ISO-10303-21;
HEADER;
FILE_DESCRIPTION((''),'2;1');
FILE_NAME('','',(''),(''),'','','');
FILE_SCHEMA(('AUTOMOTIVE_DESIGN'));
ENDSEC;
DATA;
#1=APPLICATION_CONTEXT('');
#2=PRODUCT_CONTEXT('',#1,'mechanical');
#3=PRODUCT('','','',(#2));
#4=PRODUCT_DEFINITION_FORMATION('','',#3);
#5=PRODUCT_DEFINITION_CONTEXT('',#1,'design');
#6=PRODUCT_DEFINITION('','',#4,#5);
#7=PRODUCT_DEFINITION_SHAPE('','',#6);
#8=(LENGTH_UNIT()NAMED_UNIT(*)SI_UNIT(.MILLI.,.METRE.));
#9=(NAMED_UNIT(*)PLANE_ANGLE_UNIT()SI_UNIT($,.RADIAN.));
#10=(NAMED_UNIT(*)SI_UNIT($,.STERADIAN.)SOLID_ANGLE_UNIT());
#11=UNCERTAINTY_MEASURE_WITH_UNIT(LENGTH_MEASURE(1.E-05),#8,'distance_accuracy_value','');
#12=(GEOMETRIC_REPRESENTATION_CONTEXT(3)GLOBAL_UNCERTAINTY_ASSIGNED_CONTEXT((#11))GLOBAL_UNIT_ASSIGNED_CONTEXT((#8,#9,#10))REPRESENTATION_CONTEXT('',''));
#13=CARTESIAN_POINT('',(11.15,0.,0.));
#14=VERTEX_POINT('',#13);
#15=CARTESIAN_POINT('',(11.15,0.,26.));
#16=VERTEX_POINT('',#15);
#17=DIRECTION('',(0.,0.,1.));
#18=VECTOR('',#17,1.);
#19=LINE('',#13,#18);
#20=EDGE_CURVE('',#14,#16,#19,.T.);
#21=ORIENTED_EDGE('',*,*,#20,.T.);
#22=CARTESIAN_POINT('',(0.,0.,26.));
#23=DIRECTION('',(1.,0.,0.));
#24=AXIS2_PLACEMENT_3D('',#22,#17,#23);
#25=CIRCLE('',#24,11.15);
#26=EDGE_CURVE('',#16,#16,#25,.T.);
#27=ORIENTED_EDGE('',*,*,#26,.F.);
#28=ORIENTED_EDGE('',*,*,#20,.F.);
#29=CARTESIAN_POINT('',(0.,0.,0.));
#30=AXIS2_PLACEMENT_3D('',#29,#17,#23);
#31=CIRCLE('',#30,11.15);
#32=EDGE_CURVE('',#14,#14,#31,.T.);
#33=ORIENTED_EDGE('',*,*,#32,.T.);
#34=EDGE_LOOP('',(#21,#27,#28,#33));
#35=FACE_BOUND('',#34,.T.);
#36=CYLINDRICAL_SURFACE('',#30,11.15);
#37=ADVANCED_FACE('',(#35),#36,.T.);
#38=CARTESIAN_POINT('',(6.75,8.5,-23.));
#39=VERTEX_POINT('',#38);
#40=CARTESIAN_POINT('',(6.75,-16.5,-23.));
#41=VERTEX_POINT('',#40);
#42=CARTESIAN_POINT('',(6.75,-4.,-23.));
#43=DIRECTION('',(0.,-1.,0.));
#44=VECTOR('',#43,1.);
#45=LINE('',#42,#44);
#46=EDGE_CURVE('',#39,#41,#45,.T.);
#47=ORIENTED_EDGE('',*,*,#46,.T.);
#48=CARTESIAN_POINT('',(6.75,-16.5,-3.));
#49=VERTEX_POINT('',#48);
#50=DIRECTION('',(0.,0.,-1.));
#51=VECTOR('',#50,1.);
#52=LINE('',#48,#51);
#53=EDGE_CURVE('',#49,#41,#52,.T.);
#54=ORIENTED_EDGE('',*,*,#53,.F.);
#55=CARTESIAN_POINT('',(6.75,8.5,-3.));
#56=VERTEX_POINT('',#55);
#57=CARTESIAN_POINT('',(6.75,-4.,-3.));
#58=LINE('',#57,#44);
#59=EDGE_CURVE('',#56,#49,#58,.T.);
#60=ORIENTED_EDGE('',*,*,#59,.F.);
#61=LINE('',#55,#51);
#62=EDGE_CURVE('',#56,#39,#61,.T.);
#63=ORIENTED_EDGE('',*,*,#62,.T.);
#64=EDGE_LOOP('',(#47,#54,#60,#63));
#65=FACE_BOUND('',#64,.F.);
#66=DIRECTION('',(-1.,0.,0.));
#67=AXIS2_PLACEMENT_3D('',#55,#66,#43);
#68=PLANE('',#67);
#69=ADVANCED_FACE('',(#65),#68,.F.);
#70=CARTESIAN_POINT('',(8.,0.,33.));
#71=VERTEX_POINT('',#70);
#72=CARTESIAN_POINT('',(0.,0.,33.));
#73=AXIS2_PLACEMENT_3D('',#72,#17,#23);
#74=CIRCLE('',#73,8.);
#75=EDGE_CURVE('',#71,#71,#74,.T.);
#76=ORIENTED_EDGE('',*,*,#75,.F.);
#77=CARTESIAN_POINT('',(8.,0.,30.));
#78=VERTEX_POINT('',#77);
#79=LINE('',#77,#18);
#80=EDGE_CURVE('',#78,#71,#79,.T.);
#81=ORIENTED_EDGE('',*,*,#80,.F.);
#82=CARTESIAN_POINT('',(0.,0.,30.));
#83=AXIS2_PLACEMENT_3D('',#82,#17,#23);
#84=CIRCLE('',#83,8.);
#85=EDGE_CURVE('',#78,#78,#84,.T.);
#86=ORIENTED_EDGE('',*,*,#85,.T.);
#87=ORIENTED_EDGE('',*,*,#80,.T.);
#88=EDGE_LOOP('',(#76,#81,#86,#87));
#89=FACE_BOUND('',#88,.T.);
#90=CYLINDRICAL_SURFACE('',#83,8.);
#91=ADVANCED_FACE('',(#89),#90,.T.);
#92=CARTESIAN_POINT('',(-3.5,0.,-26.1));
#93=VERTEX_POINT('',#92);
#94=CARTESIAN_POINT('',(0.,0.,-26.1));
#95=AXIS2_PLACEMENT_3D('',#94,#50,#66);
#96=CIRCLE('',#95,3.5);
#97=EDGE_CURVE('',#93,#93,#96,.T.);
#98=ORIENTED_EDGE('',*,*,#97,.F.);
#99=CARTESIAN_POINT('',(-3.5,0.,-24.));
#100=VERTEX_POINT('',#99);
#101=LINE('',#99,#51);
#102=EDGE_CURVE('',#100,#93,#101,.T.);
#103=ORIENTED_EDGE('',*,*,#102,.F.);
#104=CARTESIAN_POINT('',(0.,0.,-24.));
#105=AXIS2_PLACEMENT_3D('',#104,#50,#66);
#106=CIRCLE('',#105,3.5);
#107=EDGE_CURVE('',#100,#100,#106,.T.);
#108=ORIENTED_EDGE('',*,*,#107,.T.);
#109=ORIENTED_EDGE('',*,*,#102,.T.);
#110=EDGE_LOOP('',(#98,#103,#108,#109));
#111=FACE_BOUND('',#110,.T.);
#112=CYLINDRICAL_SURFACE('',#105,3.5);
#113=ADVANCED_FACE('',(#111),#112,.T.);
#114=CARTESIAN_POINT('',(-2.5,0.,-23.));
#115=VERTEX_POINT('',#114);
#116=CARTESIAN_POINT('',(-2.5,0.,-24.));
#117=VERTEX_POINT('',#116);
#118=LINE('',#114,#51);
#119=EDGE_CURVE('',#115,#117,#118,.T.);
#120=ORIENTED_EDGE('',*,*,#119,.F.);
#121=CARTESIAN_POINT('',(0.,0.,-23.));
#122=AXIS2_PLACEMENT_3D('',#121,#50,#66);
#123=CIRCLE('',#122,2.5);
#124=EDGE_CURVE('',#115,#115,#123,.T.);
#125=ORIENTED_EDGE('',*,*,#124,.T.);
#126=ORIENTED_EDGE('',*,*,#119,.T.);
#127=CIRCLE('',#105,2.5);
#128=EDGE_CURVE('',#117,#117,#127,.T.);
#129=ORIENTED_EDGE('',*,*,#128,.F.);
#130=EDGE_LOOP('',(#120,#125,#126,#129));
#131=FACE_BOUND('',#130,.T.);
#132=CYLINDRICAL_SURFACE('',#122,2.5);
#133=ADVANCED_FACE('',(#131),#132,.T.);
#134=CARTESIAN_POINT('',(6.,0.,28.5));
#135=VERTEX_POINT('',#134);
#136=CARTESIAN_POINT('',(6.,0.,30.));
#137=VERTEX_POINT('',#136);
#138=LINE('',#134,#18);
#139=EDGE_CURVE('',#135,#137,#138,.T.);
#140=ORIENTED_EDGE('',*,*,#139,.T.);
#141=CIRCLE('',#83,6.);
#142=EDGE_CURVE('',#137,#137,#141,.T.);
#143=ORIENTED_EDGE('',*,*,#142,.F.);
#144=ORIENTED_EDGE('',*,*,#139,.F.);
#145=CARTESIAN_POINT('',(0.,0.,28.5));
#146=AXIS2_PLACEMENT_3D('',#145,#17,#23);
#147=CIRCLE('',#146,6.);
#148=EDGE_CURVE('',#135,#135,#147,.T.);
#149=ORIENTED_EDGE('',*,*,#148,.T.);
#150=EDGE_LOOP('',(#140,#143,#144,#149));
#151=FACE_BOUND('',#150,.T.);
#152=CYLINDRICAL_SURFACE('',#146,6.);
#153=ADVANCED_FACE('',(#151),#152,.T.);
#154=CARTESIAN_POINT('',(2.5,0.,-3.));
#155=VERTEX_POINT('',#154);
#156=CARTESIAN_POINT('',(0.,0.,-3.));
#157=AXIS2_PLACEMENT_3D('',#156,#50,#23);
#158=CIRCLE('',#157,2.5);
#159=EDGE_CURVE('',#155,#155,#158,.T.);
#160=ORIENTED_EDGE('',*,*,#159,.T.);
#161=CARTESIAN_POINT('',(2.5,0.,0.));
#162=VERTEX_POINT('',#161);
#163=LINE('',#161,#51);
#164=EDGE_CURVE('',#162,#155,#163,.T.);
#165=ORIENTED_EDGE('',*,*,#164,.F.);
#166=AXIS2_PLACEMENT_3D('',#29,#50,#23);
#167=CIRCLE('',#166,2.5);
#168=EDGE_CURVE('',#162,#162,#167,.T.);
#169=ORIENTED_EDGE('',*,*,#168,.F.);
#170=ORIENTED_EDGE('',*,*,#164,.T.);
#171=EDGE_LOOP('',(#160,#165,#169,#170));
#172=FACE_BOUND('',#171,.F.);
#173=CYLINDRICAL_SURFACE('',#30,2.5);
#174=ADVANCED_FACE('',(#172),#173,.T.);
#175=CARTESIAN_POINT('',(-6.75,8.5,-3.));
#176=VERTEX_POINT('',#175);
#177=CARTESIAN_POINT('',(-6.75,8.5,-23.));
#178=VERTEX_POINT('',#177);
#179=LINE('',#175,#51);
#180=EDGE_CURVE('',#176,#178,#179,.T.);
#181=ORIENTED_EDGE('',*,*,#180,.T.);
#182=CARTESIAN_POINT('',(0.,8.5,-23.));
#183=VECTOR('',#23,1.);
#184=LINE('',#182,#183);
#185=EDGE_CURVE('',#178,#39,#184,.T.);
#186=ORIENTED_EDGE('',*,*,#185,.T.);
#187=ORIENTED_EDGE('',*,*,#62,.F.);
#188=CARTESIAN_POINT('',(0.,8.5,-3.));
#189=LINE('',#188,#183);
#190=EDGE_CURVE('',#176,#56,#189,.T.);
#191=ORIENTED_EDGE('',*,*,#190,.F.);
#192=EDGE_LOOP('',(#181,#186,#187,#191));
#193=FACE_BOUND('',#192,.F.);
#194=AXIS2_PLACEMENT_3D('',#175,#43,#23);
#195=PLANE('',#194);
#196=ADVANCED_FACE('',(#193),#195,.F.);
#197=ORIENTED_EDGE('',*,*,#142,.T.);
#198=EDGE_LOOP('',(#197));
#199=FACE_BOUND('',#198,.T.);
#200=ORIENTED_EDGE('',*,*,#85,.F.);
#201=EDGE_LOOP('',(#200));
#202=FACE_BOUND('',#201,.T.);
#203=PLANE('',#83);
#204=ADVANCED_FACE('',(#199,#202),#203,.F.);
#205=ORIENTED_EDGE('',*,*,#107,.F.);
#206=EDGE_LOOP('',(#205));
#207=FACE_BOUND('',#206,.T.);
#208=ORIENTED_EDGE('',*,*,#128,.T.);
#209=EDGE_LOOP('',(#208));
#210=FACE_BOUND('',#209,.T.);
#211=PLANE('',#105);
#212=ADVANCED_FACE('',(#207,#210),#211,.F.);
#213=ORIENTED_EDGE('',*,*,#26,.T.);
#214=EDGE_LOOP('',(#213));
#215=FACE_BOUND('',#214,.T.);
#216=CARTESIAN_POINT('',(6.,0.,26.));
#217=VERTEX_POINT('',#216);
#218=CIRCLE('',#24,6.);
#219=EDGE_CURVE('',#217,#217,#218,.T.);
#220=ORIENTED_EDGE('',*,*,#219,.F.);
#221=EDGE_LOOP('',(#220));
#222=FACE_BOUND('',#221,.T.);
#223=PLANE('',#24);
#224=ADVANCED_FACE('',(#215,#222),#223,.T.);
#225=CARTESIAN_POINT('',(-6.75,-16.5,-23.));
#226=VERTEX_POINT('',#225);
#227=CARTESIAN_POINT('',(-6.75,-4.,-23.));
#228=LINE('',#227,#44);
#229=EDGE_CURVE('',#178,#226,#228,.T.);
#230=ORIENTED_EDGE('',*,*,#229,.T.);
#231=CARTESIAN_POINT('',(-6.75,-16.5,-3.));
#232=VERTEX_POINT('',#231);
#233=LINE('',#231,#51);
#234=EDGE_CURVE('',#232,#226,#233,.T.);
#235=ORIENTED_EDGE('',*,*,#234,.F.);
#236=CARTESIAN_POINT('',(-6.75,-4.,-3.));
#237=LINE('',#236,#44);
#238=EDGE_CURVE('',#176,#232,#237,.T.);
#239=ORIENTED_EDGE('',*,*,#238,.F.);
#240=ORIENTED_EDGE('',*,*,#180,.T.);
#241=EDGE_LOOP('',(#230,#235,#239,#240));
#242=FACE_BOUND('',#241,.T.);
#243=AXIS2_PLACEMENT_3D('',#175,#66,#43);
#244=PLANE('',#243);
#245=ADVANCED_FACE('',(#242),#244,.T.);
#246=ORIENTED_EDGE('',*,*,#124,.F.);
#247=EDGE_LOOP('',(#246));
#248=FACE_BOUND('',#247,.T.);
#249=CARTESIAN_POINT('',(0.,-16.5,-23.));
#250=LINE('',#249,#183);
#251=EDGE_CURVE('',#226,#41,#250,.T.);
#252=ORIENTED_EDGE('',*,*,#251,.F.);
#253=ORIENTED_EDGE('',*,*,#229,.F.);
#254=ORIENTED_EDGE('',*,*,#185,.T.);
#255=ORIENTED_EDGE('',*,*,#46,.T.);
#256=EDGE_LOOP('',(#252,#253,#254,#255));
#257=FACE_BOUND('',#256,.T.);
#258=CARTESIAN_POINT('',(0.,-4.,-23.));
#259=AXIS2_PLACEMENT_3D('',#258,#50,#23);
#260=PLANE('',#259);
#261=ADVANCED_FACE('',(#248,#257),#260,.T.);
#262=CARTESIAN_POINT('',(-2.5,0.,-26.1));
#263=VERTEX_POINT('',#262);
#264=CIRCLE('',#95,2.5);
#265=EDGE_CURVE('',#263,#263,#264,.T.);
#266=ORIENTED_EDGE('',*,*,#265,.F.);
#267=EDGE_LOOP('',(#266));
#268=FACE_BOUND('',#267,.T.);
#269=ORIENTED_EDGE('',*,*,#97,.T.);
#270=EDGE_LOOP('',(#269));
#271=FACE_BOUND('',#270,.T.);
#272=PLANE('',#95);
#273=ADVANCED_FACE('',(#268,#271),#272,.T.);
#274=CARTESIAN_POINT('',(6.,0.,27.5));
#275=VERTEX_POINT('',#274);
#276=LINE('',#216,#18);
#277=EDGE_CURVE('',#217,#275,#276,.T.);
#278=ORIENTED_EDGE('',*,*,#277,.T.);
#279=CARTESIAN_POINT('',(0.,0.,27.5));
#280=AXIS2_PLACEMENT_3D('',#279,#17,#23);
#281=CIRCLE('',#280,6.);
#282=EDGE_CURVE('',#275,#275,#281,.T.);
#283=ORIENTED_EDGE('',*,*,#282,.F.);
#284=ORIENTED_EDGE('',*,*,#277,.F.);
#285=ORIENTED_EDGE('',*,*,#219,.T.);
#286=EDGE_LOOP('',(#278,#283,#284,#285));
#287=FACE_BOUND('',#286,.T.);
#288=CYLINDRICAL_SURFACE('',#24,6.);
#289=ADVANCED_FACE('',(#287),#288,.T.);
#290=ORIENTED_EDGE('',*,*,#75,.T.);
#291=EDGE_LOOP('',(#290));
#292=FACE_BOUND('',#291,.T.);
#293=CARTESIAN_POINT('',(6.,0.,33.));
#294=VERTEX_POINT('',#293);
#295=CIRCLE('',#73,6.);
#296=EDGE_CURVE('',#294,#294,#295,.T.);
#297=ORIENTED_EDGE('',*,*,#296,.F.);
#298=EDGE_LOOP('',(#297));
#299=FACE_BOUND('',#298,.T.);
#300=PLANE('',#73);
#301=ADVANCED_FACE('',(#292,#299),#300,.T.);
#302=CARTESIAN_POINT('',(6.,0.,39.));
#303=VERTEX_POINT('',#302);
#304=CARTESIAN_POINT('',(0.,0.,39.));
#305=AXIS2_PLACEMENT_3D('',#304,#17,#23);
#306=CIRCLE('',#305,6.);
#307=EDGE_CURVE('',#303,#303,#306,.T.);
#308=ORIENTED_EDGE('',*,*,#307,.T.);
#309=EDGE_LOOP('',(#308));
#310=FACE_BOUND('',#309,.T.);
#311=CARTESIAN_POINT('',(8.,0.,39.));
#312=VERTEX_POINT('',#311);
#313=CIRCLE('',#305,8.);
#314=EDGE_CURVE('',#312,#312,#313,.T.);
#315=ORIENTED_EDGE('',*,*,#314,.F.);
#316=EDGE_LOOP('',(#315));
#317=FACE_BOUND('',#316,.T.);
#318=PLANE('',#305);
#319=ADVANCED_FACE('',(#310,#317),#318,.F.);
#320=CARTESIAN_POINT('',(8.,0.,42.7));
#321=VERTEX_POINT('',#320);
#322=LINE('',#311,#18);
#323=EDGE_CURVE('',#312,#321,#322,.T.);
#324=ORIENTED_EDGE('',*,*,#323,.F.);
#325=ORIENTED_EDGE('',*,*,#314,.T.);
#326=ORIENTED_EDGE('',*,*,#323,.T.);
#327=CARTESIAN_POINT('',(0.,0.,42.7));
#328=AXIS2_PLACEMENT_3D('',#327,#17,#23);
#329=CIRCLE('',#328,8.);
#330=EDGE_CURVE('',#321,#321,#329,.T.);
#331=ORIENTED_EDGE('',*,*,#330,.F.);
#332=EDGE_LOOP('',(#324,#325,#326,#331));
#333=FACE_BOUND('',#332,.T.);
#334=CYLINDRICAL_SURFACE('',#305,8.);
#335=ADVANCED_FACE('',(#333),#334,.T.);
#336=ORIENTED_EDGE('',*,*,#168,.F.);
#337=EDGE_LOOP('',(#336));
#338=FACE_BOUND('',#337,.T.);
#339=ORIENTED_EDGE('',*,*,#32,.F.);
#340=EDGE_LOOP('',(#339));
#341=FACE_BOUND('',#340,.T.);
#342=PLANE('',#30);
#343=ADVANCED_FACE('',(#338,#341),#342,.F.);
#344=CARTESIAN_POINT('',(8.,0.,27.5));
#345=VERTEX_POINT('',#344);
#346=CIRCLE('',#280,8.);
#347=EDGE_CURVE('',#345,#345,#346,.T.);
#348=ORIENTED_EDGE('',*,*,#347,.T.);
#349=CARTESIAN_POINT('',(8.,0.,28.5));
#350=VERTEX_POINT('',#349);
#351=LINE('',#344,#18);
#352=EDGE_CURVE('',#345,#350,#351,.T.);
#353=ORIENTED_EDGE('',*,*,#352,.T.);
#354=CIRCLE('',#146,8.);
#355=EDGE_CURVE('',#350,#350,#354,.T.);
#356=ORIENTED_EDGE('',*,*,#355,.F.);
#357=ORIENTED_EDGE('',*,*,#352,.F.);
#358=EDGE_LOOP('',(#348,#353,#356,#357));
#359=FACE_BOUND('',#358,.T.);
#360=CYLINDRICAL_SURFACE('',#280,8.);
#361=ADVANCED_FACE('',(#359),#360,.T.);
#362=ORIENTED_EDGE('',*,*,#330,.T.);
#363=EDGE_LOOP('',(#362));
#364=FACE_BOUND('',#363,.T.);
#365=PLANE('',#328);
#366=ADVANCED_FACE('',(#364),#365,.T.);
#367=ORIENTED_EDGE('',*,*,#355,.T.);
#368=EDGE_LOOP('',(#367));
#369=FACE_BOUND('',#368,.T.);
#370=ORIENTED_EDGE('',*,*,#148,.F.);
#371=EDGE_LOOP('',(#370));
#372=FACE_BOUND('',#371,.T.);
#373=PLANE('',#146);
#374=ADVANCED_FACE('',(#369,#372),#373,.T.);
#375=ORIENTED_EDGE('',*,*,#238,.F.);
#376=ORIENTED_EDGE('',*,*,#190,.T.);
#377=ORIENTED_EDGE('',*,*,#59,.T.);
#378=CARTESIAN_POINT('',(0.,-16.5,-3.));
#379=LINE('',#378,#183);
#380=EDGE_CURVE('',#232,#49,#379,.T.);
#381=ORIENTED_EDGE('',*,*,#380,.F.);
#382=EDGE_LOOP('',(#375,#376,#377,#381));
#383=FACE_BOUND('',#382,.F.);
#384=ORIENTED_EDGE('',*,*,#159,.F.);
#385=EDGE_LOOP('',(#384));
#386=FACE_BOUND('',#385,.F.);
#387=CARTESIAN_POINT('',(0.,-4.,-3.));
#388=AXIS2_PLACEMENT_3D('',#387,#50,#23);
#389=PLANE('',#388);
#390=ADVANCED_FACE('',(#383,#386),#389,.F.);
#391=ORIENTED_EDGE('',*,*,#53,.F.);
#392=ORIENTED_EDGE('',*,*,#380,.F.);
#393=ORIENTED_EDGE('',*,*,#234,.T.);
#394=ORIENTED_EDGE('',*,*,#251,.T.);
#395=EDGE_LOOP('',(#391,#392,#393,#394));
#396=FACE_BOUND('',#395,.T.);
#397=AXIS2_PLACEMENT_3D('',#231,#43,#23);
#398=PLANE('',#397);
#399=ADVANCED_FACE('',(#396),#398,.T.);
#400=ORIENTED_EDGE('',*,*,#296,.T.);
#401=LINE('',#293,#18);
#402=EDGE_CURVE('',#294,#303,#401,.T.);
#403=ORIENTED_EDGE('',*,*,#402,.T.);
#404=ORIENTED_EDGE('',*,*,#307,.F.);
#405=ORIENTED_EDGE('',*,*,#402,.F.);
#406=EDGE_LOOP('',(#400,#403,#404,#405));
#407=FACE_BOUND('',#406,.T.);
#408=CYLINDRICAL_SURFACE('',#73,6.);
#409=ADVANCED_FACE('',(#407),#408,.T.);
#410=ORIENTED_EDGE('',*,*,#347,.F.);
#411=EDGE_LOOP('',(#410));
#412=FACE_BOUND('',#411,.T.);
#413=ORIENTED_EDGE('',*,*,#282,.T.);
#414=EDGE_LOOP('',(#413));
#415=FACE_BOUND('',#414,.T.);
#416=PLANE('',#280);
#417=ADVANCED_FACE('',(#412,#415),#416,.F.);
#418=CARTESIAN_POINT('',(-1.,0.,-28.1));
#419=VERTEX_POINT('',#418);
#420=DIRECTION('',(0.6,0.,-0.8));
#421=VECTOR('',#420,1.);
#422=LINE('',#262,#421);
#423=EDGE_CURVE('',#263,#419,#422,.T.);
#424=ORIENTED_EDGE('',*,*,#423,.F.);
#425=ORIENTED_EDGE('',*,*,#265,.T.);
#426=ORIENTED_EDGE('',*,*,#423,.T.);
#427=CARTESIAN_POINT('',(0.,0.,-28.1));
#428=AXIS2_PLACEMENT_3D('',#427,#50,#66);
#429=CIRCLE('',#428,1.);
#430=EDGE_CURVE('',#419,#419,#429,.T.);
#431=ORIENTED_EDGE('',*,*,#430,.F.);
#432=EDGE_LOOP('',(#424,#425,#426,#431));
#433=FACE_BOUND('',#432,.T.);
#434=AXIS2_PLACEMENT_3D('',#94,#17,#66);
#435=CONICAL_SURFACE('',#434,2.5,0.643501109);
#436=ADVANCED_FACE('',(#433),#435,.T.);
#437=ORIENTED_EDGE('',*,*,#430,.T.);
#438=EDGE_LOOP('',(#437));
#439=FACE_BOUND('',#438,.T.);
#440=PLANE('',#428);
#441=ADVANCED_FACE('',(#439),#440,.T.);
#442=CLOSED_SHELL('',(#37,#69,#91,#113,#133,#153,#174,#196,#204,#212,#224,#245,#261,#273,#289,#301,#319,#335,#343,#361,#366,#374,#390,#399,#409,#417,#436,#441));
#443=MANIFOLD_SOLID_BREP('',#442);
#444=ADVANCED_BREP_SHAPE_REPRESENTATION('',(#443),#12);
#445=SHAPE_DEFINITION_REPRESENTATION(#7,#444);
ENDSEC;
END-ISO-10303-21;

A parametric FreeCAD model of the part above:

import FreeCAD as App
import Part
import Sketcher


def add_polygon(sketch, points):
    """Adds a closed chain of lines whose ends are joined by coincident constraints."""
    first, n = sketch.GeometryCount, len(points)
    for a, b in zip(points, points[1:] + points[:1]):
        sketch.addGeometry(Part.LineSegment(App.Vector(*a, 0), App.Vector(*b, 0)), False)
    for i in range(n):
        sketch.addConstraint(Sketcher.Constraint("Coincident", first + i, 2, first + (i + 1) % n, 1))

doc = App.newDocument("Part")
body = doc.addObject("PartDesign::Body", "Body")

# Sketch on XZ plane
sketch1 = body.newObject("Sketcher::SketchObject", "Sketch")
sketch1.AttachmentSupport = (doc.getObject("XZ_Plane"), [""])
sketch1.MapMode = "FlatFace"
add_polygon(sketch1, [(0, 42.7), (0, 0), (11.2, 0), (11.2, 26), (6, 26), (6, 27.5), (8, 27.5), (8, 28.5), (6, 28.5), (6, 30), (8, 30), (8, 33), (6, 33), (6, 39), (8, 39), (8, 42.7)])  # lines 0-15
sketch1.addConstraint([
    Sketcher.Constraint("Vertical", 0),
    Sketcher.Constraint("Horizontal", 1),
    Sketcher.Constraint("Vertical", 2),
    Sketcher.Constraint("Horizontal", 3),
    Sketcher.Constraint("Vertical", 4),
    Sketcher.Constraint("Horizontal", 5),
    Sketcher.Constraint("Vertical", 6),
    Sketcher.Constraint("Horizontal", 7),
    Sketcher.Constraint("Vertical", 8),
    Sketcher.Constraint("Horizontal", 9),
    Sketcher.Constraint("Vertical", 10),
    Sketcher.Constraint("Horizontal", 11),
    Sketcher.Constraint("Vertical", 12),
    Sketcher.Constraint("Horizontal", 13),
    Sketcher.Constraint("Vertical", 14),
    Sketcher.Constraint("Horizontal", 15),
    Sketcher.Constraint("Coincident", 0, 2, -1, 1),
    Sketcher.Constraint("Vertical", 4, 2, 7, 2),
    Sketcher.Constraint("Vertical", 6, 2, 9, 2),
    Sketcher.Constraint("Vertical", 8, 2, 11, 2),
    Sketcher.Constraint("Vertical", 10, 2, 13, 2),
    Sketcher.Constraint("Equal", 4, 8),
    Sketcher.Constraint("DistanceX", 5, 1, 5, 2, 2.0),
    Sketcher.Constraint("DistanceX", 15, 2, 15, 1, 8.0),
    Sketcher.Constraint("DistanceY", 2, 1, 2, 2, 26.0),
    Sketcher.Constraint("DistanceY", 6, 1, 6, 2, 1.0),
    Sketcher.Constraint("DistanceY", 10, 1, 10, 2, 3.0),
    Sketcher.Constraint("DistanceY", 12, 1, 12, 2, 6.0),
    Sketcher.Constraint("DistanceY", 0, 2, 0, 1, 42.7),
    Sketcher.Constraint("DistanceY", 4, 1, 4, 2, 1.5),
    Sketcher.Constraint("DistanceX", 1, 1, 1, 2, 11.15),
])
revolution = body.newObject("PartDesign::Revolution", "Revolution")
revolution.Profile = sketch1
revolution.ReferenceAxis = (sketch1, ["V_Axis"])
revolution.Angle = 360

# Sketch on XY plane
sketch2 = body.newObject("Sketcher::SketchObject", "Sketch001")
sketch2.AttachmentSupport = (doc.getObject("XY_Plane"), [""])
sketch2.MapMode = "FlatFace"
sketch2.addGeometry(Part.Circle(App.Vector(0, 0, 0), App.Vector(0, 0, 1), 2.5), False)
sketch2.addConstraint([
    Sketcher.Constraint("Coincident", 0, 3, -1, 1),
    Sketcher.Constraint("Diameter", 0, 5.0),
])
pad1 = body.newObject("PartDesign::Pad", "Pad")
pad1.Profile = sketch2
pad1.Length = 3
pad1.Reversed = True

# Sketch on XY plane
sketch3 = body.newObject("Sketcher::SketchObject", "Sketch002")
sketch3.AttachmentSupport = (doc.getObject("XY_Plane"), [""])
sketch3.MapMode = "FlatFace"
sketch3.AttachmentOffset = App.Placement(App.Vector(0, 0, -3), App.Rotation())
add_polygon(sketch3, [(-7, -16), (-7, 8), (7, 8), (7, -16)])  # lines 0-3
sketch3.addConstraint([
    Sketcher.Constraint("Vertical", 0),
    Sketcher.Constraint("Horizontal", 1),
    Sketcher.Constraint("Vertical", 2),
    Sketcher.Constraint("Horizontal", 3),
    Sketcher.Constraint("DistanceY", 0, 1, 0, 2, 25.0),
    Sketcher.Constraint("DistanceX", 1, 1, 1, 2, 13.5),
    Sketcher.Constraint("DistanceY", -1, 1, 0, 2, 8.5),
    Sketcher.Constraint("DistanceX", 0, 2, -1, 1, 6.75),
])
pad2 = body.newObject("PartDesign::Pad", "Pad001")
pad2.Profile = sketch3
pad2.Length = 20
pad2.Reversed = True

# Sketch on XZ plane
sketch4 = body.newObject("Sketcher::SketchObject", "Sketch003")
sketch4.AttachmentSupport = (doc.getObject("XZ_Plane"), [""])
sketch4.MapMode = "FlatFace"
add_polygon(sketch4, [(0, -28.1), (0, -23), (-2.5, -23), (-2.5, -24), (-3.5, -24), (-3.5, -26.1), (-2.5, -26.1), (-1, -28.1)])  # lines 0-7
sketch4.addConstraint([
    Sketcher.Constraint("Vertical", 0),
    Sketcher.Constraint("Horizontal", 1),
    Sketcher.Constraint("Vertical", 2),
    Sketcher.Constraint("Horizontal", 3),
    Sketcher.Constraint("Vertical", 4),
    Sketcher.Constraint("Horizontal", 5),
    Sketcher.Constraint("Horizontal", 7),
    Sketcher.Constraint("PointOnObject", 0, 2, -2),
    Sketcher.Constraint("Vertical", 2, 2, 5, 2),
    Sketcher.Constraint("Equal", 5, 7),
    Sketcher.Constraint("Equal", 7, 2),
    Sketcher.Constraint("DistanceX", 3, 2, 3, 1, 1.0),
    Sketcher.Constraint("DistanceX", 1, 2, 1, 1, 2.5),
    Sketcher.Constraint("DistanceY", 0, 1, 0, 2, 5.1),
    Sketcher.Constraint("DistanceY", 4, 2, 4, 1, 2.1),
    Sketcher.Constraint("DistanceY", 0, 2, -1, 1, 23.0),
])
revolution2 = body.newObject("PartDesign::Revolution", "Revolution001")
revolution2.Profile = sketch4
revolution2.ReferenceAxis = (sketch4, ["V_Axis"])
revolution2.Angle = 360

doc.recompute()
